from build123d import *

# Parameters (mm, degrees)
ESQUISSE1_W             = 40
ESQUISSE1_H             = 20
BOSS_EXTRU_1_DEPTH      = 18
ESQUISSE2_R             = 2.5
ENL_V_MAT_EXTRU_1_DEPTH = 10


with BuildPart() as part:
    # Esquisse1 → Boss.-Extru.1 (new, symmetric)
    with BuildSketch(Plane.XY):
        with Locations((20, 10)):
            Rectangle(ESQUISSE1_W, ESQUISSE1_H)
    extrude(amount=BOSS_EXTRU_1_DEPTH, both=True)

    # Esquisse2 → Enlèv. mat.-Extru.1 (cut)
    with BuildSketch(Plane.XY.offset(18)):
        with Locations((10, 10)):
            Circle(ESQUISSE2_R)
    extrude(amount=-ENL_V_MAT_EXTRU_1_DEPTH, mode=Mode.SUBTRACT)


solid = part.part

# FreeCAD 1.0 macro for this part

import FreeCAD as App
import Part
import Sketcher

V = App.Vector
Q = App.Units.Quantity

doc = App.newDocument("Part")
body = doc.addObject("PartDesign::Body", "Body")

# Sketch on XY plane
sketch1 = doc.addObject("Sketcher::SketchObject", "Sketch")
body.addObject(sketch1)
sketch1.AttachmentSupport = (doc.XY_Plane, [""])
sketch1.MapMode = "FlatFace"
sketch1.addGeometry([
    Part.LineSegment(V(0, 20, 0), V(0, 0, 0)),
    Part.LineSegment(V(0, 0, 0), V(40, 0, 0)),
    Part.LineSegment(V(40, 0, 0), V(40, 20, 0)),
    Part.LineSegment(V(40, 20, 0), V(0, 20, 0)),
], False)
sketch1.addConstraint([
    Sketcher.Constraint("Coincident", 0, 2, 1, 1),
    Sketcher.Constraint("Coincident", 1, 2, 2, 1),
    Sketcher.Constraint("Coincident", 2, 2, 3, 1),
    Sketcher.Constraint("Coincident", 3, 2, 0, 1),
    Sketcher.Constraint("Vertical", 0),
    Sketcher.Constraint("Horizontal", 1),
    Sketcher.Constraint("Vertical", 2),
    Sketcher.Constraint("Horizontal", 3),
    Sketcher.Constraint("Coincident", 0, 2, -1, 1),
    Sketcher.Constraint("DistanceX", 1, 1, 1, 2, Q("40 mm")),
    Sketcher.Constraint("DistanceY", 0, 2, 0, 1, Q("20 mm")),
])
pad1 = doc.addObject("PartDesign::Pad", "Pad")
body.addObject(pad1)
pad1.Profile = sketch1
pad1.Length = 36
pad1.Midplane = True

# Sketch on XY plane
sketch2 = doc.addObject("Sketcher::SketchObject", "Sketch001")
body.addObject(sketch2)
sketch2.AttachmentSupport = (doc.XY_Plane, [""])
sketch2.MapMode = "FlatFace"
sketch2.AttachmentOffset = App.Placement(V(0, 0, 18), App.Rotation())
sketch2.addGeometry(Part.Circle(V(10, 10, 0), V(0, 0, 1), 2.5), False)
sketch2.addConstraint([
    Sketcher.Constraint("Diameter", 0, Q("5 mm")),
    Sketcher.Constraint("DistanceX", -1, 1, 0, 3, Q("10 mm")),
    Sketcher.Constraint("DistanceY", -1, 1, 0, 3, Q("10 mm")),
])
pocket1 = doc.addObject("PartDesign::Pocket", "Pocket")
body.addObject(pocket1)
pocket1.Profile = sketch2
pocket1.Length = 10

doc.recompute()
